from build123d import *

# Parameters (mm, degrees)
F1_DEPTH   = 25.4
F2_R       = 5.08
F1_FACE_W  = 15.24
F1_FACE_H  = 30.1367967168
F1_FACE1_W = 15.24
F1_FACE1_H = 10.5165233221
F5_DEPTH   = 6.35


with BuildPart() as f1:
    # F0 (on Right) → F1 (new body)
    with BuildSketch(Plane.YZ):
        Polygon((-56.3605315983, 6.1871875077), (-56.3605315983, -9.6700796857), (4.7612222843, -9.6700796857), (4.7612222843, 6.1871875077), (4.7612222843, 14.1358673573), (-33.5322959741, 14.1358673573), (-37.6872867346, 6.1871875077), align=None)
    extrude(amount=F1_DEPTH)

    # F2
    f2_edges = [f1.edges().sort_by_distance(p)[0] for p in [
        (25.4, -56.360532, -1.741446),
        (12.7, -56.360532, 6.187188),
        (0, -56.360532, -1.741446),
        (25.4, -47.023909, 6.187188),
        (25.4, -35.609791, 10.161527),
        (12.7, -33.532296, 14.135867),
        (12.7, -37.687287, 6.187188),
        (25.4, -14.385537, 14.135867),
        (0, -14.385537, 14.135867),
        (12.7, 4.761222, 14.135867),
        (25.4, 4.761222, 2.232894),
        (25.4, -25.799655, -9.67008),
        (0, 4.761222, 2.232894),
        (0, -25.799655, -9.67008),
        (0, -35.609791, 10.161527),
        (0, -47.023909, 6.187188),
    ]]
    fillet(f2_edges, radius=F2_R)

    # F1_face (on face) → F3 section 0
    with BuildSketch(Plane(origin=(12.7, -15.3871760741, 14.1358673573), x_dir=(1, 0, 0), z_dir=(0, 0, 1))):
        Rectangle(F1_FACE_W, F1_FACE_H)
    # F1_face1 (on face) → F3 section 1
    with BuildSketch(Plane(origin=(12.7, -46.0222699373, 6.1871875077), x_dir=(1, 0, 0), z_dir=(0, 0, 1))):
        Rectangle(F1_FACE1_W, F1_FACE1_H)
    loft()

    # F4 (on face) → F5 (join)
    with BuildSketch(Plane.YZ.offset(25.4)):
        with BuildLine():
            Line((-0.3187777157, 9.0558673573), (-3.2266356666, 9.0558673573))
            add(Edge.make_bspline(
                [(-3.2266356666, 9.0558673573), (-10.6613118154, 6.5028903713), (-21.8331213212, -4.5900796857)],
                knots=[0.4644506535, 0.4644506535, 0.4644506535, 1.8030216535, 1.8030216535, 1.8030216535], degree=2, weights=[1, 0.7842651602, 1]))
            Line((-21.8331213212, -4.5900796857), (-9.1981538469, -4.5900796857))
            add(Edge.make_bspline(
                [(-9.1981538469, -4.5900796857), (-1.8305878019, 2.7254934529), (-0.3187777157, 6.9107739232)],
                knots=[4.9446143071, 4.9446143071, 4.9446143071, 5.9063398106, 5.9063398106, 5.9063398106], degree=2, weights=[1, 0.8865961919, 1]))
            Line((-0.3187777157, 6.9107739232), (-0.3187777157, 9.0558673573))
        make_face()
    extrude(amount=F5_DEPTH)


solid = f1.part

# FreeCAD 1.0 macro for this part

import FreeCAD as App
import Part
import Sketcher

V = App.Vector
Q = App.Units.Quantity


def edges_at(feature, points):
    """Names of the edges that pass closest to the given points."""
    edges = feature.Shape.Edges
    near = lambda p: min(range(len(edges)), key=lambda i: edges[i].distToShape(Part.Vertex(*p))[0])
    return sorted({f"Edge{near(p) + 1}" for p in points})

doc = App.newDocument("Part")
body = doc.addObject("PartDesign::Body", "Body")

# Sketch on YZ plane
sketch1 = doc.addObject("Sketcher::SketchObject", "Sketch")
body.addObject(sketch1)
sketch1.AttachmentSupport = (doc.YZ_Plane, [""])
sketch1.MapMode = "FlatFace"
sketch1.addGeometry(Part.LineSegment(V(-56, 6, 0), V(-56, -10, 0)), False)
sketch1.addGeometry(Part.LineSegment(V(-56, -10, 0), V(5, -10, 0)), False)
sketch1.addGeometry(Part.LineSegment(V(5, -10, 0), V(5, 14, 0)), False)
sketch1.addGeometry(Part.LineSegment(V(5, 14, 0), V(-34, 14, 0)), False)
sketch1.addGeometry(Part.LineSegment(V(-34, 14, 0), V(-38, 6, 0)), False)
sketch1.addGeometry(Part.LineSegment(V(-38, 6, 0), V(-56, 6, 0)), False)
sketch1.addConstraint(Sketcher.Constraint("Coincident", 0, 2, 1, 1))
sketch1.addConstraint(Sketcher.Constraint("Coincident", 1, 2, 2, 1))
sketch1.addConstraint(Sketcher.Constraint("Coincident", 2, 2, 3, 1))
sketch1.addConstraint(Sketcher.Constraint("Coincident", 3, 2, 4, 1))
sketch1.addConstraint(Sketcher.Constraint("Coincident", 4, 2, 5, 1))
sketch1.addConstraint(Sketcher.Constraint("Coincident", 5, 2, 0, 1))
sketch1.addConstraint(Sketcher.Constraint("Vertical", 0))
sketch1.addConstraint(Sketcher.Constraint("Horizontal", 1))
sketch1.addConstraint(Sketcher.Constraint("Vertical", 2))
sketch1.addConstraint(Sketcher.Constraint("Horizontal", 3))
sketch1.addConstraint(Sketcher.Constraint("Horizontal", 5))
sketch1.addConstraint(Sketcher.Constraint("DistanceX", 3, 2, 3, 1, Q("38.293518 mm")))
sketch1.addConstraint(Sketcher.Constraint("Distance", 4, Q("8.969139 mm")))
sketch1.addConstraint(Sketcher.Constraint("DistanceX", 1, 1, 1, 2, Q("61.121754 mm")))
sketch1.addConstraint(Sketcher.Constraint("DistanceX", 5, 2, 5, 1, Q("18.673245 mm")))
sketch1.addConstraint(Sketcher.Constraint("DistanceY", 0, 2, 0, 1, Q("15.857267 mm")))
sketch1.addConstraint(Sketcher.Constraint("DistanceX", 0, 2, -1, 1, Q("56.360532 mm")))
sketch1.addConstraint(Sketcher.Constraint("DistanceY", 0, 2, -1, 1, Q("9.67008 mm")))
pad1 = doc.addObject("PartDesign::Pad", "Pad")
body.addObject(pad1)
pad1.Profile = sketch1
pad1.Length = Q("1 in")
doc.recompute()

fillet = doc.addObject("PartDesign::Fillet", "Fillet")
body.addObject(fillet)
fillet.Base = (pad1, edges_at(pad1, [
    (25.4, -56.361, -1.741),
    (12.7, -56.361, 6.187),
    (0, -56.361, -1.741),
    (25.4, -47.024, 6.187),
    (25.4, -35.61, 10.162),
    (12.7, -33.532, 14.136),
    (12.7, -37.687, 6.187),
    (25.4, -14.386, 14.136),
    (0, -14.386, 14.136),
    (12.7, 4.761, 14.136),
    (25.4, 4.761, 2.233),
    (25.4, -25.8, -9.67),
    (0, 4.761, 2.233),
    (0, -25.8, -9.67),
    (0, -35.61, 10.162),
    (0, -47.024, 6.187),
]))
fillet.Radius = Q("0.2 in")

# Sketch on XY plane
sketch2 = doc.addObject("Sketcher::SketchObject", "Sketch001")
body.addObject(sketch2)
sketch2.AttachmentSupport = (doc.XY_Plane, [""])
sketch2.MapMode = "FlatFace"
sketch2.AttachmentOffset = App.Placement(V(0, 0, 14.135867), App.Rotation())
sketch2.addGeometry(Part.LineSegment(V(5, 0, 0), V(5, -30, 0)), False)
sketch2.addGeometry(Part.LineSegment(V(5, -30, 0), V(20, -30, 0)), False)
sketch2.addGeometry(Part.LineSegment(V(20, -30, 0), V(20, 0, 0)), False)
sketch2.addGeometry(Part.LineSegment(V(20, 0, 0), V(5, 0, 0)), False)
sketch2.addConstraint(Sketcher.Constraint("Coincident", 0, 2, 1, 1))
sketch2.addConstraint(Sketcher.Constraint("Coincident", 1, 2, 2, 1))
sketch2.addConstraint(Sketcher.Constraint("Coincident", 2, 2, 3, 1))
sketch2.addConstraint(Sketcher.Constraint("Coincident", 3, 2, 0, 1))
sketch2.addConstraint(Sketcher.Constraint("Vertical", 0))
sketch2.addConstraint(Sketcher.Constraint("Horizontal", 1))
sketch2.addConstraint(Sketcher.Constraint("Vertical", 2))
sketch2.addConstraint(Sketcher.Constraint("Horizontal", 3))
sketch2.addConstraint(Sketcher.Constraint("DistanceX", 1, 1, 1, 2, Q("0.6 in")))
sketch2.addConstraint(Sketcher.Constraint("DistanceX", -1, 1, 0, 2, Q("0.2 in")))
sketch2.addConstraint(Sketcher.Constraint("DistanceY", 0, 2, 0, 1, Q("30.136797 mm")))
sketch2.addConstraint(Sketcher.Constraint("DistanceY", 0, 2, -1, 1, Q("30.455574 mm")))

# Sketch on XY plane
sketch3 = doc.addObject("Sketcher::SketchObject", "Sketch002")
body.addObject(sketch3)
sketch3.AttachmentSupport = (doc.XY_Plane, [""])
sketch3.MapMode = "FlatFace"
sketch3.AttachmentOffset = App.Placement(V(0, 0, 6.187188), App.Rotation())
sketch3.addGeometry(Part.LineSegment(V(5, -41, 0), V(5, -51, 0)), False)
sketch3.addGeometry(Part.LineSegment(V(5, -51, 0), V(20, -51, 0)), False)
sketch3.addGeometry(Part.LineSegment(V(20, -51, 0), V(20, -41, 0)), False)
sketch3.addGeometry(Part.LineSegment(V(20, -41, 0), V(5, -41, 0)), False)
sketch3.addConstraint(Sketcher.Constraint("Coincident", 0, 2, 1, 1))
sketch3.addConstraint(Sketcher.Constraint("Coincident", 1, 2, 2, 1))
sketch3.addConstraint(Sketcher.Constraint("Coincident", 2, 2, 3, 1))
sketch3.addConstraint(Sketcher.Constraint("Coincident", 3, 2, 0, 1))
sketch3.addConstraint(Sketcher.Constraint("Vertical", 0))
sketch3.addConstraint(Sketcher.Constraint("Horizontal", 1))
sketch3.addConstraint(Sketcher.Constraint("Vertical", 2))
sketch3.addConstraint(Sketcher.Constraint("Horizontal", 3))
sketch3.addConstraint(Sketcher.Constraint("DistanceX", 1, 1, 1, 2, Q("0.6 in")))
sketch3.addConstraint(Sketcher.Constraint("DistanceX", -1, 1, 0, 2, Q("0.2 in")))
sketch3.addConstraint(Sketcher.Constraint("DistanceY", 0, 2, 0, 1, Q("10.516523 mm")))
sketch3.addConstraint(Sketcher.Constraint("DistanceY", 0, 2, -1, 1, Q("51.280532 mm")))

additiveloft = doc.addObject("PartDesign::AdditiveLoft", "AdditiveLoft")
body.addObject(additiveloft)
additiveloft.Profile = sketch2
additiveloft.Sections = [sketch3]

# Sketch on YZ plane
sketch4 = doc.addObject("Sketcher::SketchObject", "Sketch003")
body.addObject(sketch4)
sketch4.AttachmentSupport = (doc.YZ_Plane, [""])
sketch4.MapMode = "FlatFace"
sketch4.AttachmentOffset = App.Placement(V(0, 0, 1 * 25.4), App.Rotation())
sketch4.addGeometry(Part.LineSegment(V(-0.318778, 9.055867, 0), V(-3.226636, 9.055867, 0)), False)
sketch4.addGeometry(Part.BSplineCurve([V(-3.226636, 9.055867, 0), V(-10.661312, 6.50289, 0), V(-21.833121, -4.59008, 0)], [3, 3], [0.464450653, 1.803021654], False, 2, [1, 0.78426516, 1], False), False)
sketch4.addGeometry(Part.LineSegment(V(-21.833121, -4.59008, 0), V(-9.198154, -4.59008, 0)), False)
sketch4.addGeometry(Part.BSplineCurve([V(-9.198154, -4.59008, 0), V(-1.830588, 2.725493, 0), V(-0.318778, 6.910774, 0)], [3, 3], [4.944614307, 5.906339811], False, 2, [1, 0.886596192, 1], False), False)
sketch4.addGeometry(Part.LineSegment(V(-0.318778, 6.910774, 0), V(-0.318778, 9.055867, 0)), False)
sketch4.addConstraint(Sketcher.Constraint("Block", 1))
sketch4.addConstraint(Sketcher.Constraint("Block", 3))
sketch4.addConstraint(Sketcher.Constraint("Coincident", 0, 2, 1, 1))
sketch4.addConstraint(Sketcher.Constraint("Coincident", 1, 2, 2, 1))
sketch4.addConstraint(Sketcher.Constraint("Coincident", 2, 2, 3, 1))
sketch4.addConstraint(Sketcher.Constraint("Coincident", 3, 2, 4, 1))
sketch4.addConstraint(Sketcher.Constraint("Coincident", 4, 2, 0, 1))
sketch4.addConstraint(Sketcher.Constraint("Horizontal", 0))
sketch4.addConstraint(Sketcher.Constraint("Vertical", 4))
pad2 = doc.addObject("PartDesign::Pad", "Pad001")
body.addObject(pad2)
pad2.Profile = sketch4
pad2.Length = Q("0.25 in")

doc.recompute()
